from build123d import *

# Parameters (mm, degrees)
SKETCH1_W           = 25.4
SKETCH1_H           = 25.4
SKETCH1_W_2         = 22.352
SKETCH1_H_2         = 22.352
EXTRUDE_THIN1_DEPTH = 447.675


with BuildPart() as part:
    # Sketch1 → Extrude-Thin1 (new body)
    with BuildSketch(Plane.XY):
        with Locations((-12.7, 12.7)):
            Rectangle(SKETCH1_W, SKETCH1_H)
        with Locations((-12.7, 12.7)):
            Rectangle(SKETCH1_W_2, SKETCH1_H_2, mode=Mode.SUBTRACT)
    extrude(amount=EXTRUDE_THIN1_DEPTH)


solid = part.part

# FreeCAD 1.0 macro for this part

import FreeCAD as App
import Part
import Sketcher
Q = App.Units.Quantity

doc = App.newDocument("Part")
body = doc.addObject("PartDesign::Body", "Body")

# Sketch on XY plane
sketch1 = body.newObject("Sketcher::SketchObject", "Sketch")
sketch1.AttachmentSupport = (doc.getObject("XY_Plane"), [""])
sketch1.MapMode = "FlatFace"
sketch1.addGeometry(Part.LineSegment(App.Vector(-25, 25, 0), App.Vector(-25, 0, 0)), False)
sketch1.addGeometry(Part.LineSegment(App.Vector(-25, 0, 0), App.Vector(0, 0, 0)), False)
sketch1.addGeometry(Part.LineSegment(App.Vector(0, 0, 0), App.Vector(0, 25, 0)), False)
sketch1.addGeometry(Part.LineSegment(App.Vector(0, 25, 0), App.Vector(-25, 25, 0)), False)
sketch1.addGeometry(Part.LineSegment(App.Vector(-2, 2, 0), App.Vector(-24, 2, 0)), False)
sketch1.addGeometry(Part.LineSegment(App.Vector(-24, 2, 0), App.Vector(-24, 24, 0)), False)
sketch1.addGeometry(Part.LineSegment(App.Vector(-24, 24, 0), App.Vector(-2, 24, 0)), False)
sketch1.addGeometry(Part.LineSegment(App.Vector(-2, 24, 0), App.Vector(-2, 2, 0)), False)
sketch1.addConstraint(Sketcher.Constraint("Coincident", 0, 2, 1, 1))
sketch1.addConstraint(Sketcher.Constraint("Coincident", 1, 2, 2, 1))
sketch1.addConstraint(Sketcher.Constraint("Coincident", 2, 2, 3, 1))
sketch1.addConstraint(Sketcher.Constraint("Coincident", 3, 2, 0, 1))
sketch1.addConstraint(Sketcher.Constraint("Coincident", 4, 2, 5, 1))
sketch1.addConstraint(Sketcher.Constraint("Coincident", 5, 2, 6, 1))
sketch1.addConstraint(Sketcher.Constraint("Coincident", 6, 2, 7, 1))
sketch1.addConstraint(Sketcher.Constraint("Coincident", 7, 2, 4, 1))
sketch1.addConstraint(Sketcher.Constraint("Vertical", 0))
sketch1.addConstraint(Sketcher.Constraint("Horizontal", 1))
sketch1.addConstraint(Sketcher.Constraint("Vertical", 2))
sketch1.addConstraint(Sketcher.Constraint("Horizontal", 3))
sketch1.addConstraint(Sketcher.Constraint("Horizontal", 4))
sketch1.addConstraint(Sketcher.Constraint("Vertical", 5))
sketch1.addConstraint(Sketcher.Constraint("Horizontal", 6))
sketch1.addConstraint(Sketcher.Constraint("Vertical", 7))
sketch1.addConstraint(Sketcher.Constraint("Coincident", 1, 2, -1, 1))
sketch1.addConstraint(Sketcher.Constraint("Equal", 3, 0))
sketch1.addConstraint(Sketcher.Constraint("Equal", 6, 5))
sketch1.addConstraint(Sketcher.Constraint("DistanceX", 1, 1, 1, 2, Q("1 in")))
sketch1.addConstraint(Sketcher.Constraint("DistanceX", 4, 2, 4, 1, Q("0.88 in")))
sketch1.addConstraint(Sketcher.Constraint("DistanceX", 4, 2, -1, 1, Q("0.94 in")))
sketch1.addConstraint(Sketcher.Constraint("DistanceY", -1, 1, 4, 2, Q("0.06 in")))
pad1 = body.newObject("PartDesign::Pad", "Pad")
pad1.Profile = sketch1
pad1.Length = Q("17.625 in")

doc.recompute()
